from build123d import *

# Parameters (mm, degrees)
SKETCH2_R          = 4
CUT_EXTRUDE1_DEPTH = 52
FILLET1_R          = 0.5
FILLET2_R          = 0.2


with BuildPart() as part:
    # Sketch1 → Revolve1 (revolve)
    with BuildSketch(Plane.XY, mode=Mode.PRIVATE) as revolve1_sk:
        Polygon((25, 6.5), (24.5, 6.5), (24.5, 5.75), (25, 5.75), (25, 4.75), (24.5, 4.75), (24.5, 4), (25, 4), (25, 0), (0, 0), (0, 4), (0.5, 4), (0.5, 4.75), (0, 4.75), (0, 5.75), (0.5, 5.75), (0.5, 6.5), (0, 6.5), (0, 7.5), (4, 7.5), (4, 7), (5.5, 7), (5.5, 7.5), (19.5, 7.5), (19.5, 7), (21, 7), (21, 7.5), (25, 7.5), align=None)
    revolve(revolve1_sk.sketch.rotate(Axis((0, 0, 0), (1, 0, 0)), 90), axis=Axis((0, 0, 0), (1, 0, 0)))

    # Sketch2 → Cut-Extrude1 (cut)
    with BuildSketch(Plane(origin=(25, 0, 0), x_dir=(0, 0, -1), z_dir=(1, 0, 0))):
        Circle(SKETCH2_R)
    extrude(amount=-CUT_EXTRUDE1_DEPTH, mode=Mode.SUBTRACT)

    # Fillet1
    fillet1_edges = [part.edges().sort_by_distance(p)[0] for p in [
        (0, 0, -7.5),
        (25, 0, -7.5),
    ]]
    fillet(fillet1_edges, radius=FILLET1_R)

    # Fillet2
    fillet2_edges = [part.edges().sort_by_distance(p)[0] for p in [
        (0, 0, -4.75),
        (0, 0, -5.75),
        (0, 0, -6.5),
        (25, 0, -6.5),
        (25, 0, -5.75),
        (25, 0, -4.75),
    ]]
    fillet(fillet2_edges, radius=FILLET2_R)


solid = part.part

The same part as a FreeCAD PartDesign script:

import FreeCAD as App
import Part
import Sketcher


def edges_at(feature, points):
    """Names of the edges that pass closest to the given points."""
    edges = feature.Shape.Edges
    near = lambda p: min(range(len(edges)), key=lambda i: edges[i].distToShape(Part.Vertex(*p))[0])
    return sorted({f"Edge{near(p) + 1}" for p in points})


def add_polygon(sketch, points):
    """Adds a closed chain of lines whose ends are joined by coincident constraints."""
    first, n = sketch.GeometryCount, len(points)
    for a, b in zip(points, points[1:] + points[:1]):
        sketch.addGeometry(Part.LineSegment(App.Vector(*a, 0), App.Vector(*b, 0)), False)
    for i in range(n):
        sketch.addConstraint(Sketcher.Constraint("Coincident", first + i, 2, first + (i + 1) % n, 1))

doc = App.newDocument("Part")
body = doc.addObject("PartDesign::Body", "Body")

sketch1 = body.newObject("Sketcher::SketchObject", "Sketch")
sketch1.AttachmentSupport = (doc.getObject("XY_Plane"), [""])
sketch1.MapMode = "FlatFace"
add_polygon(sketch1, [(24.5, 6.5), (25, 6.5), (25, 7.5), (21, 7.5), (21, 7), (19.5, 7), (19.5, 7.5), (5.5, 7.5), (5.5, 7), (4, 7), (4, 7.5), (0, 7.5), (0, 6.5), (0.5, 6.5), (0.5, 5.8), (0, 5.8), (0, 4.8), (0.5, 4.8), (0.5, 4), (0, 4), (0, 0), (25, 0), (25, 4), (24.5, 4), (24.5, 4.8), (25, 4.8), (25, 5.8), (24.5, 5.8)])
sketch1.addConstraint([
    Sketcher.Constraint("Horizontal", 0),
    Sketcher.Constraint("Vertical", 1),
    Sketcher.Constraint("Horizontal", 2),
    Sketcher.Constraint("Vertical", 3),
    Sketcher.Constraint("Horizontal", 4),
    Sketcher.Constraint("Vertical", 5),
    Sketcher.Constraint("Horizontal", 6),
    Sketcher.Constraint("Vertical", 7),
    Sketcher.Constraint("Horizontal", 8),
    Sketcher.Constraint("Vertical", 9),
    Sketcher.Constraint("Horizontal", 10),
    Sketcher.Constraint("Vertical", 11),
    Sketcher.Constraint("Horizontal", 12),
    Sketcher.Constraint("Vertical", 13),
    Sketcher.Constraint("Horizontal", 14),
    Sketcher.Constraint("Vertical", 15),
    Sketcher.Constraint("Horizontal", 16),
    Sketcher.Constraint("Vertical", 17),
    Sketcher.Constraint("Horizontal", 18),
    Sketcher.Constraint("Vertical", 19),
    Sketcher.Constraint("Horizontal", 20),
    Sketcher.Constraint("Vertical", 21),
    Sketcher.Constraint("Horizontal", 22),
    Sketcher.Constraint("Vertical", 23),
    Sketcher.Constraint("Horizontal", 24),
    Sketcher.Constraint("Vertical", 25),
    Sketcher.Constraint("Horizontal", 26),
    Sketcher.Constraint("Vertical", 27),
    Sketcher.Constraint("Coincident", 19, 2, -1, 1),
    Sketcher.Constraint("PointOnObject", 10, 2, -2),
    Sketcher.Constraint("PointOnObject", 14, 2, -2),
    Sketcher.Constraint("Horizontal", 2, 2, 5, 2),
    Sketcher.Constraint("Horizontal", 4, 2, 7, 2),
    Sketcher.Constraint("Horizontal", 6, 2, 9, 2),
    Sketcher.Constraint("Horizontal", 0, 2, 11, 2),
    Sketcher.Constraint("Horizontal", 18, 2, 21, 2),
    Sketcher.Constraint("Horizontal", 16, 2, 23, 2),
    Sketcher.Constraint("Horizontal", 14, 2, 25, 2),
    Sketcher.Constraint("Vertical", 13, 2, 16, 2),
    Sketcher.Constraint("Vertical", 1, 2, 20, 2),
    Sketcher.Constraint("Vertical", 21, 2, 24, 2),
    Sketcher.Constraint("Vertical", 23, 2, 26, 2),
    Sketcher.Constraint("Equal", 4, 8),
    Sketcher.Constraint("Equal", 2, 10),
    Sketcher.Constraint("Equal", 0, 12),
    Sketcher.Constraint("Equal", 26, 3),
    Sketcher.Constraint("Equal", 11, 15),
    Sketcher.Constraint("Equal", 13, 17),
    Sketcher.Constraint("Equal", 10, 19),
    Sketcher.Constraint("DistanceX", 2, 2, 2, 1, 4.0),
    Sketcher.Constraint("DistanceX", 6, 2, 6, 1, 14.0),
    Sketcher.Constraint("DistanceX", 20, 1, 20, 2, 25.0),
    Sketcher.Constraint("DistanceY", 1, 1, 1, 2, 1.0),
    Sketcher.Constraint("DistanceX", 0, 1, 0, 2, 0.5),
    Sketcher.Constraint("DistanceY", -1, 1, 3, 2, 7.0),
])
revolution = body.newObject("PartDesign::Revolution", "Revolution")
revolution.Profile = sketch1
revolution.ReferenceAxis = (sketch1, ["H_Axis"])
revolution.Angle = 360

sketch2 = body.newObject("Sketcher::SketchObject", "Sketch001")
sketch2.AttachmentSupport = (doc.getObject("YZ_Plane"), [""])
sketch2.MapMode = "FlatFace"
sketch2.AttachmentOffset = App.Placement(App.Vector(0, 0, 25), App.Rotation())
sketch2.addGeometry(Part.Circle(App.Vector(0, 0, 0), App.Vector(0, 0, 1), 4), False)
sketch2.addConstraint([
    Sketcher.Constraint("Coincident", 0, 3, -1, 1),
    Sketcher.Constraint("Diameter", 0, 8.0),
])
pocket1 = body.newObject("PartDesign::Pocket", "Pocket")
pocket1.Profile = sketch2
pocket1.Length = 52
doc.recompute()

fillet = body.newObject("PartDesign::Fillet", "Fillet")
fillet.Base = (pocket1, edges_at(pocket1, [(0, 0, -7.5), (25, 0, -7.5)]))
fillet.Radius = 0.5
doc.recompute()

fillet2 = body.newObject("PartDesign::Fillet", "Fillet001")
fillet2.Base = (fillet, edges_at(fillet, [
    (0, 0, -4.75),
    (0, 0, -5.75),
    (0, 0, -6.5),
    (25, 0, -6.5),
    (25, 0, -5.75),
    (25, 0, -4.75),
]))
fillet2.Radius = 0.2

doc.recompute()
